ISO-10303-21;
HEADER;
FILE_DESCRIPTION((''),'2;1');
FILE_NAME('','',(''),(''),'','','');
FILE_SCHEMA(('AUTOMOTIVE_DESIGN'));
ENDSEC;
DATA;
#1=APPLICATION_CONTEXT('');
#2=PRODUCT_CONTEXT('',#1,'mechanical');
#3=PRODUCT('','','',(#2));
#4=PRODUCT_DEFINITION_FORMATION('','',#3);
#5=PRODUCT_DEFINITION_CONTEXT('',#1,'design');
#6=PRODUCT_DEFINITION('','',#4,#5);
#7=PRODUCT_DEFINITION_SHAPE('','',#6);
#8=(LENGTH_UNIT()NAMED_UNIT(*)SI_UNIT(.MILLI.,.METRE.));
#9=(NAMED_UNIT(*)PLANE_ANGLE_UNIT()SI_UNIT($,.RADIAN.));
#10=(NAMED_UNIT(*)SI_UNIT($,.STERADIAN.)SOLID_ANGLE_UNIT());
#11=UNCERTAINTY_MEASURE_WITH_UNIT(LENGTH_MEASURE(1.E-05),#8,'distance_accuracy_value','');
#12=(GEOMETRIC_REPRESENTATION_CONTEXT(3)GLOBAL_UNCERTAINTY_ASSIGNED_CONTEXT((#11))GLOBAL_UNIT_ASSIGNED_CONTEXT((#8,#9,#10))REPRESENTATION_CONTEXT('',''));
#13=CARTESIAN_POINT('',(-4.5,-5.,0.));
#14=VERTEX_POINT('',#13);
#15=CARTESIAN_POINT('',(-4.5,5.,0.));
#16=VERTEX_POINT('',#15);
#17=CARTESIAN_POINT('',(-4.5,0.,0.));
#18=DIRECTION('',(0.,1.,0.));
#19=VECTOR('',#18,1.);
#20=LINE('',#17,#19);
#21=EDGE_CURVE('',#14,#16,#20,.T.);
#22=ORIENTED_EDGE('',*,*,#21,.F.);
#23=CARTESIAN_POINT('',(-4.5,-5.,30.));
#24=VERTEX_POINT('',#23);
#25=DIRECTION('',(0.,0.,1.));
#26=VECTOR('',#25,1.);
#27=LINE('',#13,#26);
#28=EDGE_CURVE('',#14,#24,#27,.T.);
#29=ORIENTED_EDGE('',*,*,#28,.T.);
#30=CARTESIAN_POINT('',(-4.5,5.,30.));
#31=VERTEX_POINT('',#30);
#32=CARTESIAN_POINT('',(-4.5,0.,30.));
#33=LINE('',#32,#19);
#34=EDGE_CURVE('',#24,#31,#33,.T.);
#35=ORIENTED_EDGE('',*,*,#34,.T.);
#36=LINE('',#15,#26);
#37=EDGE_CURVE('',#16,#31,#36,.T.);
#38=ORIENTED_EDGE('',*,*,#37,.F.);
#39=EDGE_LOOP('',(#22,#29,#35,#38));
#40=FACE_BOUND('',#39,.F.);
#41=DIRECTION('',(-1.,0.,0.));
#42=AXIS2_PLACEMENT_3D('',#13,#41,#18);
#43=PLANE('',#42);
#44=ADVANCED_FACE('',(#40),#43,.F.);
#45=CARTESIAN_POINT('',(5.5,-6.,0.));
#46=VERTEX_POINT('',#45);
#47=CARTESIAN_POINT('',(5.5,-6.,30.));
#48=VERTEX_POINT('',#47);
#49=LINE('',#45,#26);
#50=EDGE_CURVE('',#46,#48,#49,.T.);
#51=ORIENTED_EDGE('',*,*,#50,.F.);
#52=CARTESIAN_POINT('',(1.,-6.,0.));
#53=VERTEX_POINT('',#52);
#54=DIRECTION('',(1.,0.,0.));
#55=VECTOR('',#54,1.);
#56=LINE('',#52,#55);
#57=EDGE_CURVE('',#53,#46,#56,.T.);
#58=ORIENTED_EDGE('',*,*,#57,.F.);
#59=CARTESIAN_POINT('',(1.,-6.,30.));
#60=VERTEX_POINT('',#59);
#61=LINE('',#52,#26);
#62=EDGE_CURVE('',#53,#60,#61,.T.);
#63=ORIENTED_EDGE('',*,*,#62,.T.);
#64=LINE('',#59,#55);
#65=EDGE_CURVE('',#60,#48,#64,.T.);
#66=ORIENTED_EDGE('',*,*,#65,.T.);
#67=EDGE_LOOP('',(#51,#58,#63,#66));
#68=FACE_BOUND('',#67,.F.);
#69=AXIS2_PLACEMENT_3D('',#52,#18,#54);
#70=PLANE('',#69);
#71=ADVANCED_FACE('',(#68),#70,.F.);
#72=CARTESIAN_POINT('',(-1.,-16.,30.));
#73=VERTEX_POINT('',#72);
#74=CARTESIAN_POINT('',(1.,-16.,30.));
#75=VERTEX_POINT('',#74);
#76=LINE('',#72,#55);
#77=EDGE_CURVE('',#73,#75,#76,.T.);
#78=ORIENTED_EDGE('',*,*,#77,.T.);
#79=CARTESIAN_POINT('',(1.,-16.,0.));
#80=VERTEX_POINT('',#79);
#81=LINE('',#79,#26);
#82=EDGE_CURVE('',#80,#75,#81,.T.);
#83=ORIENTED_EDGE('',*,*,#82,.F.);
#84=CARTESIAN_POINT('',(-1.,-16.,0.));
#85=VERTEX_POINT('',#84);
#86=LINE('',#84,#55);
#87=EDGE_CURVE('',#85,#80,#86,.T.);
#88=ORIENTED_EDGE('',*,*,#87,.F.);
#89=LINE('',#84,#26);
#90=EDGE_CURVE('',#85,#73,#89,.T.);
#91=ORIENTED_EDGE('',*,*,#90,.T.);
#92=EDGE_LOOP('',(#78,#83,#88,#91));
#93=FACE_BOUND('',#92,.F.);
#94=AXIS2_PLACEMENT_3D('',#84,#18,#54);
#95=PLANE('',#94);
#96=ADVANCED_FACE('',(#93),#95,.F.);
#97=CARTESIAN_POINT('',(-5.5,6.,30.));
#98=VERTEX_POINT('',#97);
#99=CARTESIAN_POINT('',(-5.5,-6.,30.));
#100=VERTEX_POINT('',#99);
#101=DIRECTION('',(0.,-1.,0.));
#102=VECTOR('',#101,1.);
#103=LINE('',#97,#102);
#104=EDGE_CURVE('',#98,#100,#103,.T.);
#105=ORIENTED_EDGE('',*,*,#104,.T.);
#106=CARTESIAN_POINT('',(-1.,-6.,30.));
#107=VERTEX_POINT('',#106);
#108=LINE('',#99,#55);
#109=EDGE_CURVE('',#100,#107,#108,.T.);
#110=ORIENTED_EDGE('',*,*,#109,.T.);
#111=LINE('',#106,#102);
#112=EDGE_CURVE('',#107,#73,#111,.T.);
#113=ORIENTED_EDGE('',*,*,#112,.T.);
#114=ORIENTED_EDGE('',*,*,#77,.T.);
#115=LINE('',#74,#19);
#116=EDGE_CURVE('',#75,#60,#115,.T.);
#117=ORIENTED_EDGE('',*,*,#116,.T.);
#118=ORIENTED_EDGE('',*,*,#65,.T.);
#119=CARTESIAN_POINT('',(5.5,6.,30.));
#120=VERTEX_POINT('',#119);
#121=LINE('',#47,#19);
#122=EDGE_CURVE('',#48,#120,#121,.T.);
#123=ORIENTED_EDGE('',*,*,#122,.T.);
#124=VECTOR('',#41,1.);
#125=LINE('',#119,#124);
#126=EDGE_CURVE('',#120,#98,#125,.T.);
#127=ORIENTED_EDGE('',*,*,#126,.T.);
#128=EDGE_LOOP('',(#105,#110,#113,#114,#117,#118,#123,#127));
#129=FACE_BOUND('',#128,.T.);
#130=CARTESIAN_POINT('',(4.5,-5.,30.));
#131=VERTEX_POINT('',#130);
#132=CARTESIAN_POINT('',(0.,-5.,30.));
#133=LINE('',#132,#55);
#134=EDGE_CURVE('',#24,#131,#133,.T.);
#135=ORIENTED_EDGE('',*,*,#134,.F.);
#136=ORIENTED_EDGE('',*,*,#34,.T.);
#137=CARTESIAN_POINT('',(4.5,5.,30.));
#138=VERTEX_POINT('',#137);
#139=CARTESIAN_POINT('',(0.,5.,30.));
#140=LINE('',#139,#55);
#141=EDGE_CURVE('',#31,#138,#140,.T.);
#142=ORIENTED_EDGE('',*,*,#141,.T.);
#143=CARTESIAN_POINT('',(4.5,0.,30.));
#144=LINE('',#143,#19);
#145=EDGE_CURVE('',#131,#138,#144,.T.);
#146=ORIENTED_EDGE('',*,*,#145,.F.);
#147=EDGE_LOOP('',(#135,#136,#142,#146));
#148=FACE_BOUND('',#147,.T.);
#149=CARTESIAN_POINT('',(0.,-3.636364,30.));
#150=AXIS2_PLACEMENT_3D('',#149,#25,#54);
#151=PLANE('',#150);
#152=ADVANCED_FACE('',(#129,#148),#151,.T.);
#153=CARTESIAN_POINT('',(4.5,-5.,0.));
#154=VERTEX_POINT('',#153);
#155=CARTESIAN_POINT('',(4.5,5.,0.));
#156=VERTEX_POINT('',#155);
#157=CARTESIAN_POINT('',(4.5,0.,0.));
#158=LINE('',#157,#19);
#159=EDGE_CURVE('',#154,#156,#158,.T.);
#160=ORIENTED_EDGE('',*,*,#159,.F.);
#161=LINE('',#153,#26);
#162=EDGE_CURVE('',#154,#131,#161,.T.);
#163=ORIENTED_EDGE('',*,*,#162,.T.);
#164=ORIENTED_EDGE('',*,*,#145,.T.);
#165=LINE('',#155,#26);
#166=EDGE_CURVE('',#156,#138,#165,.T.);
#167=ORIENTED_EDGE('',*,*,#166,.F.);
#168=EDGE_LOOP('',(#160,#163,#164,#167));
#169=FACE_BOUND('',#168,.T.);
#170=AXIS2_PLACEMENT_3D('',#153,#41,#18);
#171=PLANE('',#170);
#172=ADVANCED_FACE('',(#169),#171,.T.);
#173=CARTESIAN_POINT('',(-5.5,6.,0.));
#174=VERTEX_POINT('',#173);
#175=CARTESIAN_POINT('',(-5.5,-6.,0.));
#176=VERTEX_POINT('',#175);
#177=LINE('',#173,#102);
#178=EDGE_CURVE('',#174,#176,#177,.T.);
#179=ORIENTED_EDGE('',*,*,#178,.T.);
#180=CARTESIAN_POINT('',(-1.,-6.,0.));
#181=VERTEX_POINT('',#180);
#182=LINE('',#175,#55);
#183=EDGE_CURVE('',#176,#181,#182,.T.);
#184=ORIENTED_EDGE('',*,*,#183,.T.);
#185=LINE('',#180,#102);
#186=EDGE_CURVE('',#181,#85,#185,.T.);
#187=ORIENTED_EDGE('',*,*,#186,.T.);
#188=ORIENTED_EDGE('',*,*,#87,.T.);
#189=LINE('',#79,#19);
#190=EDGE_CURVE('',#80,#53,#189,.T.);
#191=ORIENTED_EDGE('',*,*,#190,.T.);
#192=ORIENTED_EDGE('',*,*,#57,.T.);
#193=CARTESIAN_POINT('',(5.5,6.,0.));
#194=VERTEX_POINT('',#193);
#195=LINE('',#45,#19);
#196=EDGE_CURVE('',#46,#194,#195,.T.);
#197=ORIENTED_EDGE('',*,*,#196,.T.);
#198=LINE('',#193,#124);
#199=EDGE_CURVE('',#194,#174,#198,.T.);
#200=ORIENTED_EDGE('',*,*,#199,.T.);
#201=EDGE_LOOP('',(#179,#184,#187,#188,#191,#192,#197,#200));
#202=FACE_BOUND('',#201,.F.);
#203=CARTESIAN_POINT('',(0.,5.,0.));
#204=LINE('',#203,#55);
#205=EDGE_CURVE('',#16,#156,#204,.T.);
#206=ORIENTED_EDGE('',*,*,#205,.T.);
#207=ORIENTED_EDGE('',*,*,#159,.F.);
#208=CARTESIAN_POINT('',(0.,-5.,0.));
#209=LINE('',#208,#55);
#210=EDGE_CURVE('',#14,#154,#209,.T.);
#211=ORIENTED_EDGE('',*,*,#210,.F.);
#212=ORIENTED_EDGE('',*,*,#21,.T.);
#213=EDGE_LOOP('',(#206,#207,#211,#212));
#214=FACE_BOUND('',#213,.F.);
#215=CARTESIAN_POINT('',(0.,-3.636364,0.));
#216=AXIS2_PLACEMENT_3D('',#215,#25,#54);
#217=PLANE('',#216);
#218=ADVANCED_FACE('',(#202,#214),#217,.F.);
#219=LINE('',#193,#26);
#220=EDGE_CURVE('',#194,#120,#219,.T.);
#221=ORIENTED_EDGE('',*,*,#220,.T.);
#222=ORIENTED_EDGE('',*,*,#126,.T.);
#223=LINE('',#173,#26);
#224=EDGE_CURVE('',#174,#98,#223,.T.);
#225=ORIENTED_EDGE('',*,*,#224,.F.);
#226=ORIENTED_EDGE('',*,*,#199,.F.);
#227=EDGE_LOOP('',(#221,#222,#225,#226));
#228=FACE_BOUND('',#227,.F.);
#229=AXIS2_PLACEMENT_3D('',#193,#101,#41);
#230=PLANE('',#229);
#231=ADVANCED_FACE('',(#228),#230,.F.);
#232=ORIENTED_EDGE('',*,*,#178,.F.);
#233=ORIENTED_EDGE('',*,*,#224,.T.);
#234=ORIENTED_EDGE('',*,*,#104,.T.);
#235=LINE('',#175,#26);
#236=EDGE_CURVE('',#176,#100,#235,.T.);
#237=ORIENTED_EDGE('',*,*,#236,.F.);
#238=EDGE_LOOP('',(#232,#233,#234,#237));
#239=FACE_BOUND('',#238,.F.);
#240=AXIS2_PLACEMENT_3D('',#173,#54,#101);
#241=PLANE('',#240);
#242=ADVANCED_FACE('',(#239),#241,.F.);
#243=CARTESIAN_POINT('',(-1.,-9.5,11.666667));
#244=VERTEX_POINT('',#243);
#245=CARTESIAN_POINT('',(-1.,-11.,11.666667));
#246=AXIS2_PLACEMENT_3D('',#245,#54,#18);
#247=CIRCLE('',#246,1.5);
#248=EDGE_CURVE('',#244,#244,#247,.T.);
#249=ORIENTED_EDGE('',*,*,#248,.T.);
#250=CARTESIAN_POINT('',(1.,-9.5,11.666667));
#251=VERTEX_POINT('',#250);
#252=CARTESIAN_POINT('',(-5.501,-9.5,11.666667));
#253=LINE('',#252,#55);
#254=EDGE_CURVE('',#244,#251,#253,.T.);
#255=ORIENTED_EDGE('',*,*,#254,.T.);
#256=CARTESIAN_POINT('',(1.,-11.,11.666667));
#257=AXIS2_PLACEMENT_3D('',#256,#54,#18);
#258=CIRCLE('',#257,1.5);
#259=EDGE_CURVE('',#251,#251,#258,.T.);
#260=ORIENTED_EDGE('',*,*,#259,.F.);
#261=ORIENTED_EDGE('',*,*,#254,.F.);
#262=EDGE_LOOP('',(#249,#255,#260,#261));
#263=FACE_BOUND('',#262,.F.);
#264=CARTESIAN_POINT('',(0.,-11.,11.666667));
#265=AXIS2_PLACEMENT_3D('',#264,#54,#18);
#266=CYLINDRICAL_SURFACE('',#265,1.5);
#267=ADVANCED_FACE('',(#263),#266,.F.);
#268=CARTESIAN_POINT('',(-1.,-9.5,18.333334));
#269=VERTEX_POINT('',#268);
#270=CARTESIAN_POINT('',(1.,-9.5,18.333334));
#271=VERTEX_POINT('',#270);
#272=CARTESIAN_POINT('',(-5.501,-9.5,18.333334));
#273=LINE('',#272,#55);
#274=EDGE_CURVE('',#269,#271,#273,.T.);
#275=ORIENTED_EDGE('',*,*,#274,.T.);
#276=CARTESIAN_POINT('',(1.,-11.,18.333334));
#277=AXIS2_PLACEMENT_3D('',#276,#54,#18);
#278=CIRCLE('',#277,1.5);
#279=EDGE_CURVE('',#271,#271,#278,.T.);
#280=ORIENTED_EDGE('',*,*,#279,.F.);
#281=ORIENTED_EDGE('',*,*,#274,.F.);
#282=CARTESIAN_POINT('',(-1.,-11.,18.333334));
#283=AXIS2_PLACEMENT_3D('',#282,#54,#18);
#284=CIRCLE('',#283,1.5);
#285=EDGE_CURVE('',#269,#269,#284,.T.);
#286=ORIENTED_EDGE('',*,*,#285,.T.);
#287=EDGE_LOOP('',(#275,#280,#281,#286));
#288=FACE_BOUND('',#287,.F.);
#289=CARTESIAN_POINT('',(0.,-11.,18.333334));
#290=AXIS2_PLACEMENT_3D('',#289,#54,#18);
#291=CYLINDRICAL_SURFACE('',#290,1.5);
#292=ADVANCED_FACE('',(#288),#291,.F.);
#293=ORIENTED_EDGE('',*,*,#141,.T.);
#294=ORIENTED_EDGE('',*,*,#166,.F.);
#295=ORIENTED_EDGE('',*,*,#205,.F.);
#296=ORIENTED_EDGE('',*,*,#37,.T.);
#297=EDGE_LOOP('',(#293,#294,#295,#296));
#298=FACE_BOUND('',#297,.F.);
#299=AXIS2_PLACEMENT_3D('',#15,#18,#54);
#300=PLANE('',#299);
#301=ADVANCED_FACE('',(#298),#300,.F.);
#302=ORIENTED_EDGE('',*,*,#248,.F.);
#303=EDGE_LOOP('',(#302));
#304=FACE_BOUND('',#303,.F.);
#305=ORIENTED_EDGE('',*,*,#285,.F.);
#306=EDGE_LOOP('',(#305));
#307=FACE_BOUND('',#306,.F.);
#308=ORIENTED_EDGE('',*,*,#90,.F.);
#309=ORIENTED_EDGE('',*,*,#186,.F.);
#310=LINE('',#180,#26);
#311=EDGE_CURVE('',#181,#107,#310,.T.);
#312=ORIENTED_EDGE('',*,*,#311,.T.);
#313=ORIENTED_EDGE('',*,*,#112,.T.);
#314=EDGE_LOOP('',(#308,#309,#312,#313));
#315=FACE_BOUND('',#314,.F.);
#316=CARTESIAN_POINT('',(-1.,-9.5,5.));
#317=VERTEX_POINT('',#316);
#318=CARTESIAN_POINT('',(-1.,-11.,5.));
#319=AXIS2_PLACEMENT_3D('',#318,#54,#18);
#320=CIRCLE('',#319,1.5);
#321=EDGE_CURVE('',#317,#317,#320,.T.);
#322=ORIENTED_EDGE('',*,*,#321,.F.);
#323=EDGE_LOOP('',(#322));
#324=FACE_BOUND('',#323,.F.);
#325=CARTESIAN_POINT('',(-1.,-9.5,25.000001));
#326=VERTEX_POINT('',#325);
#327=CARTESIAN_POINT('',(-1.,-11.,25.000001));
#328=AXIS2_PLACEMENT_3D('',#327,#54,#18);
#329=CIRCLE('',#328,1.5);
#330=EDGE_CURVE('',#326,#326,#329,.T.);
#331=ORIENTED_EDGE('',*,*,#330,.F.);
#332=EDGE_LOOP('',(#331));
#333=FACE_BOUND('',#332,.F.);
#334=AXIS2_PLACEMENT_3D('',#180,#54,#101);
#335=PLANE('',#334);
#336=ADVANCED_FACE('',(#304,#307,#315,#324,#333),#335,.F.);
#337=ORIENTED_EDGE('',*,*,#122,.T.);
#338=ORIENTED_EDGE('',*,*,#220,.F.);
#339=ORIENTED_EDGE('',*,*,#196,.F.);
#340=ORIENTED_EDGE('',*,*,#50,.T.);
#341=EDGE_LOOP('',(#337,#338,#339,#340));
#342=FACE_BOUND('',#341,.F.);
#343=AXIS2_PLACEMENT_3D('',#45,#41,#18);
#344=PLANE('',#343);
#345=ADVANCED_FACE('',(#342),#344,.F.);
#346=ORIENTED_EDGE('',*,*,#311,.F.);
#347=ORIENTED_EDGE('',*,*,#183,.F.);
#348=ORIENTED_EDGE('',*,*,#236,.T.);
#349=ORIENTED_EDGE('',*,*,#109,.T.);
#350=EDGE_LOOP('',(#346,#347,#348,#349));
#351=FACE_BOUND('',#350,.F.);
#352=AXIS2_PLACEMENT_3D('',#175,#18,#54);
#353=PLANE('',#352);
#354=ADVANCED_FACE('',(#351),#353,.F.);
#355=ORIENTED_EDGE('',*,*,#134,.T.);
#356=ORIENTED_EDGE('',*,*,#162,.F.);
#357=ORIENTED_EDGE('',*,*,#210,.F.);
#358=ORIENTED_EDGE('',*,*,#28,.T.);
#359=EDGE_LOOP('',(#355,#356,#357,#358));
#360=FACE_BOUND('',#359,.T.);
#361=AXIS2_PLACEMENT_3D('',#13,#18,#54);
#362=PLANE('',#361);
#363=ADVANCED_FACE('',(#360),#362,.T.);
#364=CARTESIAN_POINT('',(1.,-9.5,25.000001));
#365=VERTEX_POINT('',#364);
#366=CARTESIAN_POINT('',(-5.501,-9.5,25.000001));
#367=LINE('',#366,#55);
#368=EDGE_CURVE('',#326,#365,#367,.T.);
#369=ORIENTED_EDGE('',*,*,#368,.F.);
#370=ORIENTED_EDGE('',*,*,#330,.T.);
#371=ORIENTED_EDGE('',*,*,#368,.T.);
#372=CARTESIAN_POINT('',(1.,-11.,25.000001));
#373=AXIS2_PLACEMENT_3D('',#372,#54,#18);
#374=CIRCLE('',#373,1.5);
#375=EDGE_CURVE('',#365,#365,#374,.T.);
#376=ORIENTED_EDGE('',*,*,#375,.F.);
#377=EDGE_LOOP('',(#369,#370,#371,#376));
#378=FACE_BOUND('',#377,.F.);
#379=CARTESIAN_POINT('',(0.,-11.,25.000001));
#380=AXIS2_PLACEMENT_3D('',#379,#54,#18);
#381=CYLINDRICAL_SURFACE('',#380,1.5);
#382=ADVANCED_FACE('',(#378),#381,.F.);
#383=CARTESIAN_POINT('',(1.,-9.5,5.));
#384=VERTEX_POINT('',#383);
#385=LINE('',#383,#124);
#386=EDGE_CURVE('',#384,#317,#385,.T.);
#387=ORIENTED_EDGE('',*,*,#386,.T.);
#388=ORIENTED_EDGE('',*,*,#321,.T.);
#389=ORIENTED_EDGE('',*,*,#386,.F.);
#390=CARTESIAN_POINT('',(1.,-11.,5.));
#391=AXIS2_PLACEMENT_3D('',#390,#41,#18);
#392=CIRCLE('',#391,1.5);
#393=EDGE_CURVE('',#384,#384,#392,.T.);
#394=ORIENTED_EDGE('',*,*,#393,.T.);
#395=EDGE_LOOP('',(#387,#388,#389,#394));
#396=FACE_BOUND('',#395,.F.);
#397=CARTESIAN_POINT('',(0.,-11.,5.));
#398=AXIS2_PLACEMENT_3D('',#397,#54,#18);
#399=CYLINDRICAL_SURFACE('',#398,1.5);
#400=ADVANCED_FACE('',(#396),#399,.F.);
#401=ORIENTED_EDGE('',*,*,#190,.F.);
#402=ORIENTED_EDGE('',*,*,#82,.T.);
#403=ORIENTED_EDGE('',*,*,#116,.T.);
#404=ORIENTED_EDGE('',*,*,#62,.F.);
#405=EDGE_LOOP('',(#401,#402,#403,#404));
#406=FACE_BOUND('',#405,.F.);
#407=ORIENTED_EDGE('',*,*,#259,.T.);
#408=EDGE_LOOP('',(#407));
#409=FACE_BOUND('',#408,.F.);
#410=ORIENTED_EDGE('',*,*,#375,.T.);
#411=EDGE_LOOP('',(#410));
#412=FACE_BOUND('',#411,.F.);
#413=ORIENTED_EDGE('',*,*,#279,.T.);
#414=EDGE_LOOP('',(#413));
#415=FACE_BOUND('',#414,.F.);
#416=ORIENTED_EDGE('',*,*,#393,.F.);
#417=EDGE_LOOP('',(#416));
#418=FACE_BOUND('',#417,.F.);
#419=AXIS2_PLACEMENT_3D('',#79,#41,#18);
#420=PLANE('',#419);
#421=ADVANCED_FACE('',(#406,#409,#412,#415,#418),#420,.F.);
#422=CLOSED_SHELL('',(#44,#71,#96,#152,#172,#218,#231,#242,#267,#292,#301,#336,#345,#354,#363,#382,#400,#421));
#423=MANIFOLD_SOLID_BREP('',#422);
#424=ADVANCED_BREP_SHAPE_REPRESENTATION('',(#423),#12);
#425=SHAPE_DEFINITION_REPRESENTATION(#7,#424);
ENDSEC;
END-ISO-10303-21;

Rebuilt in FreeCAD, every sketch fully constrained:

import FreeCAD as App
import Part
import Sketcher

V = App.Vector
Q = App.Units.Quantity

doc = App.newDocument("Part")
body = doc.addObject("PartDesign::Body", "Body")

sketch1 = doc.addObject("Sketcher::SketchObject", "Sketch")
body.addObject(sketch1)
sketch1.AttachmentSupport = (doc.XY_Plane, [""])
sketch1.MapMode = "FlatFace"
sketch1.addGeometry(Part.LineSegment(V(-5.5, 6, 0), V(-5.5, -6, 0)), False)
sketch1.addGeometry(Part.LineSegment(V(-5.5, -6, 0), V(-1, -6, 0)), False)
sketch1.addGeometry(Part.LineSegment(V(-1, -6, 0), V(-1, -16, 0)), False)
sketch1.addGeometry(Part.LineSegment(V(-1, -16, 0), V(1, -16, 0)), False)
sketch1.addGeometry(Part.LineSegment(V(1, -16, 0), V(1, -6, 0)), False)
sketch1.addGeometry(Part.LineSegment(V(1, -6, 0), V(5.5, -6, 0)), False)
sketch1.addGeometry(Part.LineSegment(V(5.5, -6, 0), V(5.5, 6, 0)), False)
sketch1.addGeometry(Part.LineSegment(V(5.5, 6, 0), V(-5.5, 6, 0)), False)
sketch1.addGeometry(Part.LineSegment(V(4.5, -5, 0), V(-4.5, -5, 0)), False)
sketch1.addGeometry(Part.LineSegment(V(-4.5, -5, 0), V(-4.5, 5, 0)), False)
sketch1.addGeometry(Part.LineSegment(V(-4.5, 5, 0), V(4.5, 5, 0)), False)
sketch1.addGeometry(Part.LineSegment(V(4.5, 5, 0), V(4.5, -5, 0)), False)
sketch1.addConstraint(Sketcher.Constraint("Coincident", 0, 2, 1, 1))
sketch1.addConstraint(Sketcher.Constraint("Coincident", 1, 2, 2, 1))
sketch1.addConstraint(Sketcher.Constraint("Coincident", 2, 2, 3, 1))
sketch1.addConstraint(Sketcher.Constraint("Coincident", 3, 2, 4, 1))
sketch1.addConstraint(Sketcher.Constraint("Coincident", 4, 2, 5, 1))
sketch1.addConstraint(Sketcher.Constraint("Coincident", 5, 2, 6, 1))
sketch1.addConstraint(Sketcher.Constraint("Coincident", 6, 2, 7, 1))
sketch1.addConstraint(Sketcher.Constraint("Coincident", 7, 2, 0, 1))
sketch1.addConstraint(Sketcher.Constraint("Coincident", 8, 2, 9, 1))
sketch1.addConstraint(Sketcher.Constraint("Coincident", 9, 2, 10, 1))
sketch1.addConstraint(Sketcher.Constraint("Coincident", 10, 2, 11, 1))
sketch1.addConstraint(Sketcher.Constraint("Coincident", 11, 2, 8, 1))
sketch1.addConstraint(Sketcher.Constraint("Vertical", 0))
sketch1.addConstraint(Sketcher.Constraint("Horizontal", 1))
sketch1.addConstraint(Sketcher.Constraint("Vertical", 2))
sketch1.addConstraint(Sketcher.Constraint("Horizontal", 3))
sketch1.addConstraint(Sketcher.Constraint("Vertical", 4))
sketch1.addConstraint(Sketcher.Constraint("Horizontal", 5))
sketch1.addConstraint(Sketcher.Constraint("Vertical", 6))
sketch1.addConstraint(Sketcher.Constraint("Horizontal", 7))
sketch1.addConstraint(Sketcher.Constraint("Horizontal", 8))
sketch1.addConstraint(Sketcher.Constraint("Vertical", 9))
sketch1.addConstraint(Sketcher.Constraint("Horizontal", 10))
sketch1.addConstraint(Sketcher.Constraint("Vertical", 11))
sketch1.addConstraint(Sketcher.Constraint("Symmetric", 0, 2, 6, 2, -1, 1))
sketch1.addConstraint(Sketcher.Constraint("Symmetric", 8, 2, 10, 2, -1, 1))
sketch1.addConstraint(Sketcher.Constraint("Symmetric", 1, 2, 4, 2, -2))
sketch1.addConstraint(Sketcher.Constraint("Equal", 4, 9))
sketch1.addConstraint(Sketcher.Constraint("DistanceX", 3, 1, 3, 2, Q("2 mm")))
sketch1.addConstraint(Sketcher.Constraint("DistanceX", 7, 2, 7, 1, Q("11 mm")))
sketch1.addConstraint(Sketcher.Constraint("DistanceX", 8, 2, 8, 1, Q("9 mm")))
sketch1.addConstraint(Sketcher.Constraint("DistanceY", 0, 2, 0, 1, Q("12 mm")))
sketch1.addConstraint(Sketcher.Constraint("DistanceY", 2, 2, 2, 1, Q("10 mm")))
pad1 = doc.addObject("PartDesign::Pad", "Pad")
body.addObject(pad1)
pad1.Profile = sketch1
pad1.Length = 30

sketch2 = doc.addObject("Sketcher::SketchObject", "Sketch001")
body.addObject(sketch2)
sketch2.AttachmentSupport = (doc.YZ_Plane, [""])
sketch2.MapMode = "FlatFace"
sketch2.addGeometry(Part.Circle(V(-11, 5, 0), V(0, 0, 1), 1.5), False)
sketch2.addConstraint(Sketcher.Constraint("Diameter", 0, Q("3 mm")))
sketch2.addConstraint(Sketcher.Constraint("DistanceX", 0, 3, -1, 1, Q("11 mm")))
sketch2.addConstraint(Sketcher.Constraint("DistanceY", -1, 1, 0, 3, Q("5 mm")))
pocket1 = doc.addObject("PartDesign::Pocket", "Pocket")
body.addObject(pocket1)
pocket1.Profile = sketch2
pocket1.Type = "ThroughAll"
pocket1.Midplane = True
doc.recompute()

linearpattern = doc.addObject("PartDesign::LinearPattern", "LinearPattern")
body.addObject(linearpattern)
linearpattern.Originals = [pocket1]
linearpattern.Direction = (doc.Z_Axis, [""])
linearpattern.Mode = "offset"
linearpattern.Offset = 6.666667
linearpattern.Occurrences = 4
body.Tip = linearpattern

doc.recompute()
